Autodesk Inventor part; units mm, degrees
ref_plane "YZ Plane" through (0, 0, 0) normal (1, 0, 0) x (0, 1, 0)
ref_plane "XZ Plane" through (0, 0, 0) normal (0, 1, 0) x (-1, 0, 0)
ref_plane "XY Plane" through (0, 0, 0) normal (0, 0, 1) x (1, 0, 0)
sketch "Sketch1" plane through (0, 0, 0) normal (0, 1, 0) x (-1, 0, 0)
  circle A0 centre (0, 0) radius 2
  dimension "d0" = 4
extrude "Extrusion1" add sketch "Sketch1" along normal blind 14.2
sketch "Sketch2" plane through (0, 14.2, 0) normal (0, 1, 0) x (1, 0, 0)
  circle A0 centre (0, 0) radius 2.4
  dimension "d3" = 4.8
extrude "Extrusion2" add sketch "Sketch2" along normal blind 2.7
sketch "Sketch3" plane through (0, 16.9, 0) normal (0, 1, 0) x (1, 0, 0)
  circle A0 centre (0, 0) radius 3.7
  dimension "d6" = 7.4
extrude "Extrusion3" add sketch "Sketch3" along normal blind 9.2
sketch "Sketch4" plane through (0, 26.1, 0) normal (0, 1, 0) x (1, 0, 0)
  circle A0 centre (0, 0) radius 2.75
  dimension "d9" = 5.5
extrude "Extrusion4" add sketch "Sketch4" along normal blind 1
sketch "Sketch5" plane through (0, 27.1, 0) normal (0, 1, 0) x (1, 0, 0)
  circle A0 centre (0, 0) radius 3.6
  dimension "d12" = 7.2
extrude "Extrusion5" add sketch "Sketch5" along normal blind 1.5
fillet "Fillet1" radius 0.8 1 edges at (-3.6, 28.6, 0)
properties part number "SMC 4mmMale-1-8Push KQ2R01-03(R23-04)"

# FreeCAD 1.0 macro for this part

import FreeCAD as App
import Part
import Sketcher

V = App.Vector
Q = App.Units.Quantity


def edges_at(feature, points):
    """Names of the edges that pass closest to the given points."""
    edges = feature.Shape.Edges
    near = lambda p: min(range(len(edges)), key=lambda i: edges[i].distToShape(Part.Vertex(*p))[0])
    return sorted({f"Edge{near(p) + 1}" for p in points})

doc = App.newDocument("Part")
body = doc.addObject("PartDesign::Body", "Body")

# Sketch on XZ plane
sketch1 = body.newObject("Sketcher::SketchObject", "Sketch")
sketch1.AttachmentSupport = (doc.getObject("XZ_Plane"), [""])
sketch1.MapMode = "FlatFace"
sketch1.addGeometry(Part.Circle(V(0, 0, 0), V(0, 0, 1), 2), False)
sketch1.addConstraint([
    Sketcher.Constraint("Coincident", 0, 3, -1, 1),
    Sketcher.Constraint("Diameter", 0, Q("4 mm")),
])
pad1 = body.newObject("PartDesign::Pad", "Pad")
pad1.Profile = sketch1
pad1.Length = 14.2
pad1.Reversed = True

# Sketch on XZ plane
sketch2 = body.newObject("Sketcher::SketchObject", "Sketch001")
sketch2.AttachmentSupport = (doc.getObject("XZ_Plane"), [""])
sketch2.MapMode = "FlatFace"
sketch2.AttachmentOffset = App.Placement(V(0, 0, -14.2), App.Rotation())
sketch2.addGeometry(Part.Circle(V(0, 0, 0), V(0, 0, 1), 2.4), False)
sketch2.addConstraint([
    Sketcher.Constraint("Coincident", 0, 3, -1, 1),
    Sketcher.Constraint("Diameter", 0, Q("4.8 mm")),
])
pad2 = body.newObject("PartDesign::Pad", "Pad001")
pad2.Profile = sketch2
pad2.Length = 2.7
pad2.Reversed = True

# Sketch on XZ plane
sketch3 = body.newObject("Sketcher::SketchObject", "Sketch002")
sketch3.AttachmentSupport = (doc.getObject("XZ_Plane"), [""])
sketch3.MapMode = "FlatFace"
sketch3.AttachmentOffset = App.Placement(V(0, 0, -16.9), App.Rotation())
sketch3.addGeometry(Part.Circle(V(0, 0, 0), V(0, 0, 1), 3.7), False)
sketch3.addConstraint([
    Sketcher.Constraint("Coincident", 0, 3, -1, 1),
    Sketcher.Constraint("Diameter", 0, Q("7.4 mm")),
])
pad3 = body.newObject("PartDesign::Pad", "Pad002")
pad3.Profile = sketch3
pad3.Length = 9.2
pad3.Reversed = True

# Sketch on XZ plane
sketch4 = body.newObject("Sketcher::SketchObject", "Sketch003")
sketch4.AttachmentSupport = (doc.getObject("XZ_Plane"), [""])
sketch4.MapMode = "FlatFace"
sketch4.AttachmentOffset = App.Placement(V(0, 0, -26.1), App.Rotation())
sketch4.addGeometry(Part.Circle(V(0, 0, 0), V(0, 0, 1), 2.8), False)
sketch4.addConstraint([
    Sketcher.Constraint("Coincident", 0, 3, -1, 1),
    Sketcher.Constraint("Diameter", 0, Q("5.5 mm")),
])
pad4 = body.newObject("PartDesign::Pad", "Pad003")
pad4.Profile = sketch4
pad4.Length = 1
pad4.Reversed = True

# Sketch on XZ plane
sketch5 = body.newObject("Sketcher::SketchObject", "Sketch004")
sketch5.AttachmentSupport = (doc.getObject("XZ_Plane"), [""])
sketch5.MapMode = "FlatFace"
sketch5.AttachmentOffset = App.Placement(V(0, 0, -27.1), App.Rotation())
sketch5.addGeometry(Part.Circle(V(0, 0, 0), V(0, 0, 1), 3.6), False)
sketch5.addConstraint([
    Sketcher.Constraint("Coincident", 0, 3, -1, 1),
    Sketcher.Constraint("Diameter", 0, Q("7.2 mm")),
])
pad5 = body.newObject("PartDesign::Pad", "Pad004")
pad5.Profile = sketch5
pad5.Length = 1.5
pad5.Reversed = True
doc.recompute()

fillet = body.newObject("PartDesign::Fillet", "Fillet")
fillet.Base = (pad5, edges_at(pad5, [(-3.6, 28.6, 0)]))
fillet.Radius = 0.8

doc.recompute()
